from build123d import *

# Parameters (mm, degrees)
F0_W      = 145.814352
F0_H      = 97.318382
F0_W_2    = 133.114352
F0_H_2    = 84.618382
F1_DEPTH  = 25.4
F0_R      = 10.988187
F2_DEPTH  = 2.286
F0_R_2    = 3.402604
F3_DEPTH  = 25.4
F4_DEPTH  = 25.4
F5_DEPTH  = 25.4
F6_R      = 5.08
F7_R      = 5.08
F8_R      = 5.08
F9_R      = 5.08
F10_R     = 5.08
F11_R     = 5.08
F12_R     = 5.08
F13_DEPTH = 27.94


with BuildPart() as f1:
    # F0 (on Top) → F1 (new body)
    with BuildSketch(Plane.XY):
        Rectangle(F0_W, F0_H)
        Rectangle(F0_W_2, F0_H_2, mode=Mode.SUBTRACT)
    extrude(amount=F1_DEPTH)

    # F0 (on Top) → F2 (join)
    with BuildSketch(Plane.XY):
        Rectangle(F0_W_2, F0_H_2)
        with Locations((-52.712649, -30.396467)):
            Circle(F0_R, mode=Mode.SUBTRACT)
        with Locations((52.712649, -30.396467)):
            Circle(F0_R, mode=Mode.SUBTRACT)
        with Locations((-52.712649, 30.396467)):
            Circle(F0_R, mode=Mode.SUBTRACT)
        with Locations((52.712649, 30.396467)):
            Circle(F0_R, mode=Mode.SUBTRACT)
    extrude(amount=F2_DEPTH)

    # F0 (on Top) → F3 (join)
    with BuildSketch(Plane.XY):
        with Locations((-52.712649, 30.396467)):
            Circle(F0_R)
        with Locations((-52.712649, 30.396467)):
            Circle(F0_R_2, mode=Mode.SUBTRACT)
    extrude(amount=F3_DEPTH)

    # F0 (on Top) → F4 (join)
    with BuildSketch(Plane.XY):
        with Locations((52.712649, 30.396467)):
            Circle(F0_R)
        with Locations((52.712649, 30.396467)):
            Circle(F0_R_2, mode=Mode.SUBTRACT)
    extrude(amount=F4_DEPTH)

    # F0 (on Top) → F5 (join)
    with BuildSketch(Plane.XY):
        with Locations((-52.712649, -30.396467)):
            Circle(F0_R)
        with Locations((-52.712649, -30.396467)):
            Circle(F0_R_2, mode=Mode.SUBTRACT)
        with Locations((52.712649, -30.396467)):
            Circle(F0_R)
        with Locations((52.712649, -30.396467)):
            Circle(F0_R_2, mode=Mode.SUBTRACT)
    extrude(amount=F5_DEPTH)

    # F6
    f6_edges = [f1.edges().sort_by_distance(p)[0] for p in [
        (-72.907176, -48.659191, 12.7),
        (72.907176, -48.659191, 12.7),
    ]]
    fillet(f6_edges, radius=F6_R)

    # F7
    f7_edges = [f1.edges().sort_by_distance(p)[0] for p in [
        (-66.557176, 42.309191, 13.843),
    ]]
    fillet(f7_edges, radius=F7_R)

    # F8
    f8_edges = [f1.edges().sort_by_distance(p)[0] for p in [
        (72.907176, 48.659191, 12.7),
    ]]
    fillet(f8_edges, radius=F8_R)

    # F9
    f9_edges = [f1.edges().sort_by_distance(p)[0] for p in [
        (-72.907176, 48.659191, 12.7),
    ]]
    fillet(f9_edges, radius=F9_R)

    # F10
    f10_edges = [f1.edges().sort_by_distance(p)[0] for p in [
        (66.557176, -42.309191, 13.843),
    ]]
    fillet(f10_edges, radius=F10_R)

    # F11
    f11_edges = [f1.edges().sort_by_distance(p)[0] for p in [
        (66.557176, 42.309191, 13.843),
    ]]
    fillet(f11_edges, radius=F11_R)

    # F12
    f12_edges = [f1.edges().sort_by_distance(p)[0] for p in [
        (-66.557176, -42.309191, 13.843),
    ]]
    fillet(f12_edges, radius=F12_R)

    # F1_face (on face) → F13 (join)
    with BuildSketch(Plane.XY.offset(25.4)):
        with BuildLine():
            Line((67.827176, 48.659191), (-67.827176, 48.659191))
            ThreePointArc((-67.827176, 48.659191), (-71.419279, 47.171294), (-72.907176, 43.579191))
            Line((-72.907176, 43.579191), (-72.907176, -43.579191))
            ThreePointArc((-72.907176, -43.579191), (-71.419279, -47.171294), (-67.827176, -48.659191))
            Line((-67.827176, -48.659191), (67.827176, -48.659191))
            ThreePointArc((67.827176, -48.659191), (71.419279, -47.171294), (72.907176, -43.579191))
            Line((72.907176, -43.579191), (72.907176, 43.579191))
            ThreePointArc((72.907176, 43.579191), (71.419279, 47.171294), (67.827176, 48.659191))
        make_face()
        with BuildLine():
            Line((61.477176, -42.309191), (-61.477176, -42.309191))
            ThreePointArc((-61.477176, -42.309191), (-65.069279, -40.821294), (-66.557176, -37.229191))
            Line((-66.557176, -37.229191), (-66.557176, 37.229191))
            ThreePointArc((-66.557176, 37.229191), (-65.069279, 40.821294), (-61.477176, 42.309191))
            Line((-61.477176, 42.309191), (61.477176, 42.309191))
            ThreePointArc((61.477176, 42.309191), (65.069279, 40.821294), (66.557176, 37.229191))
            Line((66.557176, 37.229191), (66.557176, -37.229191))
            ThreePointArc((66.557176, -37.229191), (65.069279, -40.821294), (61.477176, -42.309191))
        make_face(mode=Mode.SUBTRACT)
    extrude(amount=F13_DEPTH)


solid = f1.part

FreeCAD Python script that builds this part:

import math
import FreeCAD as App
import Part
import Sketcher

V = App.Vector
Q = App.Units.Quantity


def edges_at(feature, points):
    """Names of the edges that pass closest to the given points."""
    edges = feature.Shape.Edges
    near = lambda p: min(range(len(edges)), key=lambda i: edges[i].distToShape(Part.Vertex(*p))[0])
    return sorted({f"Edge{near(p) + 1}" for p in points})

doc = App.newDocument("Part")
body = doc.addObject("PartDesign::Body", "Body")

# Sketch on XY plane
sketch1 = body.newObject("Sketcher::SketchObject", "Sketch")
sketch1.AttachmentSupport = (doc.getObject("XY_Plane"), [""])
sketch1.MapMode = "FlatFace"
sketch1.addGeometry(Part.LineSegment(V(-73, 49, 0), V(-73, -49, 0)), False)
sketch1.addGeometry(Part.LineSegment(V(-73, -49, 0), V(73, -49, 0)), False)
sketch1.addGeometry(Part.LineSegment(V(73, -49, 0), V(73, 49, 0)), False)
sketch1.addGeometry(Part.LineSegment(V(73, 49, 0), V(-73, 49, 0)), False)
sketch1.addGeometry(Part.LineSegment(V(67, -42, 0), V(-67, -42, 0)), False)
sketch1.addGeometry(Part.LineSegment(V(-67, -42, 0), V(-67, 42, 0)), False)
sketch1.addGeometry(Part.LineSegment(V(-67, 42, 0), V(67, 42, 0)), False)
sketch1.addGeometry(Part.LineSegment(V(67, 42, 0), V(67, -42, 0)), False)
sketch1.addConstraint(Sketcher.Constraint("Coincident", 0, 2, 1, 1))
sketch1.addConstraint(Sketcher.Constraint("Coincident", 1, 2, 2, 1))
sketch1.addConstraint(Sketcher.Constraint("Coincident", 2, 2, 3, 1))
sketch1.addConstraint(Sketcher.Constraint("Coincident", 3, 2, 0, 1))
sketch1.addConstraint(Sketcher.Constraint("Coincident", 4, 2, 5, 1))
sketch1.addConstraint(Sketcher.Constraint("Coincident", 5, 2, 6, 1))
sketch1.addConstraint(Sketcher.Constraint("Coincident", 6, 2, 7, 1))
sketch1.addConstraint(Sketcher.Constraint("Coincident", 7, 2, 4, 1))
sketch1.addConstraint(Sketcher.Constraint("Vertical", 0))
sketch1.addConstraint(Sketcher.Constraint("Horizontal", 1))
sketch1.addConstraint(Sketcher.Constraint("Vertical", 2))
sketch1.addConstraint(Sketcher.Constraint("Horizontal", 3))
sketch1.addConstraint(Sketcher.Constraint("Horizontal", 4))
sketch1.addConstraint(Sketcher.Constraint("Vertical", 5))
sketch1.addConstraint(Sketcher.Constraint("Horizontal", 6))
sketch1.addConstraint(Sketcher.Constraint("Vertical", 7))
sketch1.addConstraint(Sketcher.Constraint("Symmetric", 0, 2, 2, 2, -1, 1))
sketch1.addConstraint(Sketcher.Constraint("Symmetric", 4, 2, 6, 2, -1, 1))
sketch1.addConstraint(Sketcher.Constraint("DistanceX", 0, 2, 4, 2, Q("0.25 in")))
sketch1.addConstraint(Sketcher.Constraint("DistanceY", 0, 2, 4, 2, Q("0.25 in")))
sketch1.addConstraint(Sketcher.Constraint("DistanceX", 4, 2, 4, 1, Q("133.114352 mm")))
sketch1.addConstraint(Sketcher.Constraint("DistanceY", 0, 2, 0, 1, Q("97.318382 mm")))
pad1 = body.newObject("PartDesign::Pad", "Pad")
pad1.Profile = sketch1
pad1.Length = Q("1 in")

# Sketch on XY plane
sketch2 = body.newObject("Sketcher::SketchObject", "Sketch001")
sketch2.AttachmentSupport = (doc.getObject("XY_Plane"), [""])
sketch2.MapMode = "FlatFace"
sketch2.addGeometry(Part.LineSegment(V(-67, 42, 0), V(-67, -42, 0)), False)
sketch2.addGeometry(Part.LineSegment(V(-67, -42, 0), V(67, -42, 0)), False)
sketch2.addGeometry(Part.LineSegment(V(67, -42, 0), V(67, 42, 0)), False)
sketch2.addGeometry(Part.LineSegment(V(67, 42, 0), V(-67, 42, 0)), False)
sketch2.addGeometry(Part.Circle(V(-53, -30, 0), V(0, 0, 1), 11), False)
sketch2.addGeometry(Part.Circle(V(53, -30, 0), V(0, 0, 1), 11), False)
sketch2.addGeometry(Part.Circle(V(-53, 30, 0), V(0, 0, 1), 11), False)
sketch2.addGeometry(Part.Circle(V(53, 30, 0), V(0, 0, 1), 11), False)
sketch2.addConstraint(Sketcher.Constraint("Coincident", 0, 2, 1, 1))
sketch2.addConstraint(Sketcher.Constraint("Coincident", 1, 2, 2, 1))
sketch2.addConstraint(Sketcher.Constraint("Coincident", 2, 2, 3, 1))
sketch2.addConstraint(Sketcher.Constraint("Coincident", 3, 2, 0, 1))
sketch2.addConstraint(Sketcher.Constraint("Vertical", 0))
sketch2.addConstraint(Sketcher.Constraint("Horizontal", 1))
sketch2.addConstraint(Sketcher.Constraint("Vertical", 2))
sketch2.addConstraint(Sketcher.Constraint("Horizontal", 3))
sketch2.addConstraint(Sketcher.Constraint("Equal", 4, 5))
sketch2.addConstraint(Sketcher.Constraint("Equal", 5, 6))
sketch2.addConstraint(Sketcher.Constraint("Equal", 6, 7))
sketch2.addConstraint(Sketcher.Constraint("Symmetric", 5, 3, 6, 3, -1, 1))
sketch2.addConstraint(Sketcher.Constraint("Symmetric", 4, 3, 7, 3, -1, 1))
sketch2.addConstraint(Sketcher.Constraint("Symmetric", 0, 2, 2, 2, -1, 1))
sketch2.addConstraint(Sketcher.Constraint("Symmetric", 4, 3, 5, 3, -2))
sketch2.addConstraint(Sketcher.Constraint("Diameter", 4, Q("21.976374 mm")))
sketch2.addConstraint(Sketcher.Constraint("DistanceX", 1, 1, 1, 2, Q("133.114352 mm")))
sketch2.addConstraint(Sketcher.Constraint("DistanceY", 0, 2, 0, 1, Q("84.618382 mm")))
sketch2.addConstraint(Sketcher.Constraint("DistanceX", 4, 3, 5, 3, Q("105.425298 mm")))
sketch2.addConstraint(Sketcher.Constraint("DistanceY", 0, 2, 6, 3, Q("72.705658 mm")))
pad2 = body.newObject("PartDesign::Pad", "Pad001")
pad2.Profile = sketch2
pad2.Length = Q("0.09 in")

# Sketch on XY plane
sketch3 = body.newObject("Sketcher::SketchObject", "Sketch002")
sketch3.AttachmentSupport = (doc.getObject("XY_Plane"), [""])
sketch3.MapMode = "FlatFace"
sketch3.addGeometry(Part.Circle(V(-52.7, 30.4, 0), V(0, 0, 1), 11), False)
sketch3.addGeometry(Part.Circle(V(-52.7, 30.4, 0), V(0, 0, 1), 3.4), False)
sketch3.addConstraint(Sketcher.Constraint("Coincident", 1, 3, 0, 3))
sketch3.addConstraint(Sketcher.Constraint("Diameter", 1, Q("6.805208 mm")))
sketch3.addConstraint(Sketcher.Constraint("Diameter", 0, Q("21.976374 mm")))
sketch3.addConstraint(Sketcher.Constraint("DistanceX", 0, 3, -1, 1, Q("52.712649 mm")))
sketch3.addConstraint(Sketcher.Constraint("DistanceY", -1, 1, 0, 3, Q("30.396467 mm")))
pad3 = body.newObject("PartDesign::Pad", "Pad002")
pad3.Profile = sketch3
pad3.Length = Q("1 in")

# Sketch on XY plane
sketch4 = body.newObject("Sketcher::SketchObject", "Sketch003")
sketch4.AttachmentSupport = (doc.getObject("XY_Plane"), [""])
sketch4.MapMode = "FlatFace"
sketch4.addGeometry(Part.Circle(V(52.7, 30.4, 0), V(0, 0, 1), 11), False)
sketch4.addGeometry(Part.Circle(V(52.7, 30.4, 0), V(0, 0, 1), 3.4), False)
sketch4.addConstraint(Sketcher.Constraint("Coincident", 1, 3, 0, 3))
sketch4.addConstraint(Sketcher.Constraint("Diameter", 1, Q("6.805208 mm")))
sketch4.addConstraint(Sketcher.Constraint("Diameter", 0, Q("21.976374 mm")))
sketch4.addConstraint(Sketcher.Constraint("DistanceX", -1, 1, 0, 3, Q("52.712649 mm")))
sketch4.addConstraint(Sketcher.Constraint("DistanceY", -1, 1, 0, 3, Q("30.396467 mm")))
pad4 = body.newObject("PartDesign::Pad", "Pad003")
pad4.Profile = sketch4
pad4.Length = Q("1 in")

# Sketch on XY plane
sketch5 = body.newObject("Sketcher::SketchObject", "Sketch004")
sketch5.AttachmentSupport = (doc.getObject("XY_Plane"), [""])
sketch5.MapMode = "FlatFace"
sketch5.addGeometry(Part.Circle(V(-52.7, -30.4, 0), V(0, 0, 1), 11), False)
sketch5.addGeometry(Part.Circle(V(-52.7, -30.4, 0), V(0, 0, 1), 3.4), False)
sketch5.addGeometry(Part.Circle(V(52.7, -30.4, 0), V(0, 0, 1), 11), False)
sketch5.addGeometry(Part.Circle(V(52.7, -30.4, 0), V(0, 0, 1), 3.4), False)
sketch5.addConstraint(Sketcher.Constraint("Coincident", 1, 3, 0, 3))
sketch5.addConstraint(Sketcher.Constraint("Coincident", 3, 3, 2, 3))
sketch5.addConstraint(Sketcher.Constraint("Equal", 0, 2))
sketch5.addConstraint(Sketcher.Constraint("Equal", 1, 3))
sketch5.addConstraint(Sketcher.Constraint("Symmetric", 0, 3, 2, 3, -2))
sketch5.addConstraint(Sketcher.Constraint("Diameter", 1, Q("6.805208 mm")))
sketch5.addConstraint(Sketcher.Constraint("Diameter", 0, Q("21.976374 mm")))
sketch5.addConstraint(Sketcher.Constraint("DistanceX", 0, 3, 2, 3, Q("105.425298 mm")))
sketch5.addConstraint(Sketcher.Constraint("DistanceY", 0, 3, -1, 1, Q("30.396467 mm")))
pad5 = body.newObject("PartDesign::Pad", "Pad004")
pad5.Profile = sketch5
pad5.Length = Q("1 in")
doc.recompute()

fillet = body.newObject("PartDesign::Fillet", "Fillet")
fillet.Base = (pad5, edges_at(pad5, [(-72.907, -48.659, 12.7), (72.907, -48.659, 12.7)]))
fillet.Radius = Q("0.2 in")
doc.recompute()

fillet2 = body.newObject("PartDesign::Fillet", "Fillet001")
fillet2.Base = (fillet, edges_at(fillet, [(-66.557, 42.309, 13.843)]))
fillet2.Radius = Q("0.2 in")
doc.recompute()

fillet3 = body.newObject("PartDesign::Fillet", "Fillet002")
fillet3.Base = (fillet2, edges_at(fillet2, [(72.907, 48.659, 12.7)]))
fillet3.Radius = Q("0.2 in")
doc.recompute()

fillet4 = body.newObject("PartDesign::Fillet", "Fillet003")
fillet4.Base = (fillet3, edges_at(fillet3, [(-72.907, 48.659, 12.7)]))
fillet4.Radius = Q("0.2 in")
doc.recompute()

fillet5 = body.newObject("PartDesign::Fillet", "Fillet004")
fillet5.Base = (fillet4, edges_at(fillet4, [(66.557, -42.309, 13.843)]))
fillet5.Radius = Q("0.2 in")
doc.recompute()

fillet6 = body.newObject("PartDesign::Fillet", "Fillet005")
fillet6.Base = (fillet5, edges_at(fillet5, [(66.557, 42.309, 13.843)]))
fillet6.Radius = Q("0.2 in")
doc.recompute()

fillet7 = body.newObject("PartDesign::Fillet", "Fillet006")
fillet7.Base = (fillet6, edges_at(fillet6, [(-66.557, -42.309, 13.843)]))
fillet7.Radius = Q("0.2 in")

# Sketch on XY plane
sketch6 = body.newObject("Sketcher::SketchObject", "Sketch005")
sketch6.AttachmentSupport = (doc.getObject("XY_Plane"), [""])
sketch6.MapMode = "FlatFace"
sketch6.AttachmentOffset = App.Placement(V(0, 0, 1 * 25.4), App.Rotation())
sketch6.addGeometry(Part.LineSegment(V(68, 49, 0), V(-68, 49, 0)), False)
sketch6.addGeometry(Part.ArcOfCircle(Part.Circle(V(-68, 44, 0), V(0, 0, 1), 5), math.radians(90), math.radians(180)), False)
sketch6.addGeometry(Part.LineSegment(V(-73, 44, 0), V(-73, -44, 0)), False)
sketch6.addGeometry(Part.ArcOfCircle(Part.Circle(V(-68, -44, 0), V(0, 0, 1), 5), math.radians(180), math.radians(270)), False)
sketch6.addGeometry(Part.LineSegment(V(-68, -49, 0), V(68, -49, 0)), False)
sketch6.addGeometry(Part.ArcOfCircle(Part.Circle(V(68, -44, 0), V(0, 0, 1), 5), math.radians(-90), math.radians(0)), False)
sketch6.addGeometry(Part.LineSegment(V(73, -44, 0), V(73, 44, 0)), False)
sketch6.addGeometry(Part.ArcOfCircle(Part.Circle(V(68, 44, 0), V(0, 0, 1), 5), math.radians(0), math.radians(90)), False)
sketch6.addGeometry(Part.ArcOfCircle(Part.Circle(V(61, -37, 0), V(0, 0, 1), 5), math.radians(-90), math.radians(0)), False)
sketch6.addGeometry(Part.LineSegment(V(61, -42, 0), V(-61, -42, 0)), False)
sketch6.addGeometry(Part.ArcOfCircle(Part.Circle(V(-61, -37, 0), V(0, 0, 1), 5), math.radians(180), math.radians(270)), False)
sketch6.addGeometry(Part.LineSegment(V(-67, -37, 0), V(-67, 37, 0)), False)
sketch6.addGeometry(Part.ArcOfCircle(Part.Circle(V(-61, 37, 0), V(0, 0, 1), 5), math.radians(90), math.radians(180)), False)
sketch6.addGeometry(Part.LineSegment(V(-61, 42, 0), V(61, 42, 0)), False)
sketch6.addGeometry(Part.ArcOfCircle(Part.Circle(V(61, 37, 0), V(0, 0, 1), 5), math.radians(0), math.radians(90)), False)
sketch6.addGeometry(Part.LineSegment(V(67, 37, 0), V(67, -37, 0)), False)
sketch6.addConstraint(Sketcher.Constraint("Tangent", 0, 2, 1, 1))
sketch6.addConstraint(Sketcher.Constraint("Tangent", 1, 2, 2, 1))
sketch6.addConstraint(Sketcher.Constraint("Tangent", 2, 2, 3, 1))
sketch6.addConstraint(Sketcher.Constraint("Tangent", 3, 2, 4, 1))
sketch6.addConstraint(Sketcher.Constraint("Tangent", 4, 2, 5, 1))
sketch6.addConstraint(Sketcher.Constraint("Tangent", 5, 2, 6, 1))
sketch6.addConstraint(Sketcher.Constraint("Tangent", 6, 2, 7, 1))
sketch6.addConstraint(Sketcher.Constraint("Tangent", 7, 2, 0, 1))
sketch6.addConstraint(Sketcher.Constraint("Tangent", 8, 1, 9, 1))
sketch6.addConstraint(Sketcher.Constraint("Tangent", 9, 2, 10, 2))
sketch6.addConstraint(Sketcher.Constraint("Tangent", 10, 1, 11, 1))
sketch6.addConstraint(Sketcher.Constraint("Tangent", 11, 2, 12, 2))
sketch6.addConstraint(Sketcher.Constraint("Tangent", 12, 1, 13, 1))
sketch6.addConstraint(Sketcher.Constraint("Tangent", 13, 2, 14, 2))
sketch6.addConstraint(Sketcher.Constraint("Tangent", 14, 1, 15, 1))
sketch6.addConstraint(Sketcher.Constraint("Tangent", 15, 2, 8, 2))
sketch6.addConstraint(Sketcher.Constraint("Horizontal", 0))
sketch6.addConstraint(Sketcher.Constraint("Vertical", 2))
sketch6.addConstraint(Sketcher.Constraint("Horizontal", 4))
sketch6.addConstraint(Sketcher.Constraint("Vertical", 6))
sketch6.addConstraint(Sketcher.Constraint("Horizontal", 9))
sketch6.addConstraint(Sketcher.Constraint("Vertical", 11))
sketch6.addConstraint(Sketcher.Constraint("Horizontal", 13))
sketch6.addConstraint(Sketcher.Constraint("Vertical", 15))
sketch6.addConstraint(Sketcher.Constraint("Equal", 1, 3))
sketch6.addConstraint(Sketcher.Constraint("Equal", 3, 5))
sketch6.addConstraint(Sketcher.Constraint("Equal", 5, 7))
sketch6.addConstraint(Sketcher.Constraint("Equal", 7, 8))
sketch6.addConstraint(Sketcher.Constraint("Equal", 8, 10))
sketch6.addConstraint(Sketcher.Constraint("Equal", 10, 12))
sketch6.addConstraint(Sketcher.Constraint("Equal", 12, 14))
sketch6.addConstraint(Sketcher.Constraint("Symmetric", 1, 3, 5, 3, -1, 1))
sketch6.addConstraint(Sketcher.Constraint("Symmetric", 8, 3, 12, 3, -1, 1))
sketch6.addConstraint(Sketcher.Constraint("Radius", 1, Q("0.1999999 in")))
sketch6.addConstraint(Sketcher.Constraint("DistanceX", 8, 3, 5, 3, Q("0.25 in")))
sketch6.addConstraint(Sketcher.Constraint("DistanceY", 5, 3, 8, 3, Q("0.25 in")))
sketch6.addConstraint(Sketcher.Constraint("DistanceX", 0, 2, 0, 1, Q("135.654352 mm")))
sketch6.addConstraint(Sketcher.Constraint("DistanceY", 11, 1, 11, 2, Q("74.458382 mm")))
pad6 = body.newObject("PartDesign::Pad", "Pad005")
pad6.Profile = sketch6
pad6.Length = Q("1.1 in")

doc.recompute()
